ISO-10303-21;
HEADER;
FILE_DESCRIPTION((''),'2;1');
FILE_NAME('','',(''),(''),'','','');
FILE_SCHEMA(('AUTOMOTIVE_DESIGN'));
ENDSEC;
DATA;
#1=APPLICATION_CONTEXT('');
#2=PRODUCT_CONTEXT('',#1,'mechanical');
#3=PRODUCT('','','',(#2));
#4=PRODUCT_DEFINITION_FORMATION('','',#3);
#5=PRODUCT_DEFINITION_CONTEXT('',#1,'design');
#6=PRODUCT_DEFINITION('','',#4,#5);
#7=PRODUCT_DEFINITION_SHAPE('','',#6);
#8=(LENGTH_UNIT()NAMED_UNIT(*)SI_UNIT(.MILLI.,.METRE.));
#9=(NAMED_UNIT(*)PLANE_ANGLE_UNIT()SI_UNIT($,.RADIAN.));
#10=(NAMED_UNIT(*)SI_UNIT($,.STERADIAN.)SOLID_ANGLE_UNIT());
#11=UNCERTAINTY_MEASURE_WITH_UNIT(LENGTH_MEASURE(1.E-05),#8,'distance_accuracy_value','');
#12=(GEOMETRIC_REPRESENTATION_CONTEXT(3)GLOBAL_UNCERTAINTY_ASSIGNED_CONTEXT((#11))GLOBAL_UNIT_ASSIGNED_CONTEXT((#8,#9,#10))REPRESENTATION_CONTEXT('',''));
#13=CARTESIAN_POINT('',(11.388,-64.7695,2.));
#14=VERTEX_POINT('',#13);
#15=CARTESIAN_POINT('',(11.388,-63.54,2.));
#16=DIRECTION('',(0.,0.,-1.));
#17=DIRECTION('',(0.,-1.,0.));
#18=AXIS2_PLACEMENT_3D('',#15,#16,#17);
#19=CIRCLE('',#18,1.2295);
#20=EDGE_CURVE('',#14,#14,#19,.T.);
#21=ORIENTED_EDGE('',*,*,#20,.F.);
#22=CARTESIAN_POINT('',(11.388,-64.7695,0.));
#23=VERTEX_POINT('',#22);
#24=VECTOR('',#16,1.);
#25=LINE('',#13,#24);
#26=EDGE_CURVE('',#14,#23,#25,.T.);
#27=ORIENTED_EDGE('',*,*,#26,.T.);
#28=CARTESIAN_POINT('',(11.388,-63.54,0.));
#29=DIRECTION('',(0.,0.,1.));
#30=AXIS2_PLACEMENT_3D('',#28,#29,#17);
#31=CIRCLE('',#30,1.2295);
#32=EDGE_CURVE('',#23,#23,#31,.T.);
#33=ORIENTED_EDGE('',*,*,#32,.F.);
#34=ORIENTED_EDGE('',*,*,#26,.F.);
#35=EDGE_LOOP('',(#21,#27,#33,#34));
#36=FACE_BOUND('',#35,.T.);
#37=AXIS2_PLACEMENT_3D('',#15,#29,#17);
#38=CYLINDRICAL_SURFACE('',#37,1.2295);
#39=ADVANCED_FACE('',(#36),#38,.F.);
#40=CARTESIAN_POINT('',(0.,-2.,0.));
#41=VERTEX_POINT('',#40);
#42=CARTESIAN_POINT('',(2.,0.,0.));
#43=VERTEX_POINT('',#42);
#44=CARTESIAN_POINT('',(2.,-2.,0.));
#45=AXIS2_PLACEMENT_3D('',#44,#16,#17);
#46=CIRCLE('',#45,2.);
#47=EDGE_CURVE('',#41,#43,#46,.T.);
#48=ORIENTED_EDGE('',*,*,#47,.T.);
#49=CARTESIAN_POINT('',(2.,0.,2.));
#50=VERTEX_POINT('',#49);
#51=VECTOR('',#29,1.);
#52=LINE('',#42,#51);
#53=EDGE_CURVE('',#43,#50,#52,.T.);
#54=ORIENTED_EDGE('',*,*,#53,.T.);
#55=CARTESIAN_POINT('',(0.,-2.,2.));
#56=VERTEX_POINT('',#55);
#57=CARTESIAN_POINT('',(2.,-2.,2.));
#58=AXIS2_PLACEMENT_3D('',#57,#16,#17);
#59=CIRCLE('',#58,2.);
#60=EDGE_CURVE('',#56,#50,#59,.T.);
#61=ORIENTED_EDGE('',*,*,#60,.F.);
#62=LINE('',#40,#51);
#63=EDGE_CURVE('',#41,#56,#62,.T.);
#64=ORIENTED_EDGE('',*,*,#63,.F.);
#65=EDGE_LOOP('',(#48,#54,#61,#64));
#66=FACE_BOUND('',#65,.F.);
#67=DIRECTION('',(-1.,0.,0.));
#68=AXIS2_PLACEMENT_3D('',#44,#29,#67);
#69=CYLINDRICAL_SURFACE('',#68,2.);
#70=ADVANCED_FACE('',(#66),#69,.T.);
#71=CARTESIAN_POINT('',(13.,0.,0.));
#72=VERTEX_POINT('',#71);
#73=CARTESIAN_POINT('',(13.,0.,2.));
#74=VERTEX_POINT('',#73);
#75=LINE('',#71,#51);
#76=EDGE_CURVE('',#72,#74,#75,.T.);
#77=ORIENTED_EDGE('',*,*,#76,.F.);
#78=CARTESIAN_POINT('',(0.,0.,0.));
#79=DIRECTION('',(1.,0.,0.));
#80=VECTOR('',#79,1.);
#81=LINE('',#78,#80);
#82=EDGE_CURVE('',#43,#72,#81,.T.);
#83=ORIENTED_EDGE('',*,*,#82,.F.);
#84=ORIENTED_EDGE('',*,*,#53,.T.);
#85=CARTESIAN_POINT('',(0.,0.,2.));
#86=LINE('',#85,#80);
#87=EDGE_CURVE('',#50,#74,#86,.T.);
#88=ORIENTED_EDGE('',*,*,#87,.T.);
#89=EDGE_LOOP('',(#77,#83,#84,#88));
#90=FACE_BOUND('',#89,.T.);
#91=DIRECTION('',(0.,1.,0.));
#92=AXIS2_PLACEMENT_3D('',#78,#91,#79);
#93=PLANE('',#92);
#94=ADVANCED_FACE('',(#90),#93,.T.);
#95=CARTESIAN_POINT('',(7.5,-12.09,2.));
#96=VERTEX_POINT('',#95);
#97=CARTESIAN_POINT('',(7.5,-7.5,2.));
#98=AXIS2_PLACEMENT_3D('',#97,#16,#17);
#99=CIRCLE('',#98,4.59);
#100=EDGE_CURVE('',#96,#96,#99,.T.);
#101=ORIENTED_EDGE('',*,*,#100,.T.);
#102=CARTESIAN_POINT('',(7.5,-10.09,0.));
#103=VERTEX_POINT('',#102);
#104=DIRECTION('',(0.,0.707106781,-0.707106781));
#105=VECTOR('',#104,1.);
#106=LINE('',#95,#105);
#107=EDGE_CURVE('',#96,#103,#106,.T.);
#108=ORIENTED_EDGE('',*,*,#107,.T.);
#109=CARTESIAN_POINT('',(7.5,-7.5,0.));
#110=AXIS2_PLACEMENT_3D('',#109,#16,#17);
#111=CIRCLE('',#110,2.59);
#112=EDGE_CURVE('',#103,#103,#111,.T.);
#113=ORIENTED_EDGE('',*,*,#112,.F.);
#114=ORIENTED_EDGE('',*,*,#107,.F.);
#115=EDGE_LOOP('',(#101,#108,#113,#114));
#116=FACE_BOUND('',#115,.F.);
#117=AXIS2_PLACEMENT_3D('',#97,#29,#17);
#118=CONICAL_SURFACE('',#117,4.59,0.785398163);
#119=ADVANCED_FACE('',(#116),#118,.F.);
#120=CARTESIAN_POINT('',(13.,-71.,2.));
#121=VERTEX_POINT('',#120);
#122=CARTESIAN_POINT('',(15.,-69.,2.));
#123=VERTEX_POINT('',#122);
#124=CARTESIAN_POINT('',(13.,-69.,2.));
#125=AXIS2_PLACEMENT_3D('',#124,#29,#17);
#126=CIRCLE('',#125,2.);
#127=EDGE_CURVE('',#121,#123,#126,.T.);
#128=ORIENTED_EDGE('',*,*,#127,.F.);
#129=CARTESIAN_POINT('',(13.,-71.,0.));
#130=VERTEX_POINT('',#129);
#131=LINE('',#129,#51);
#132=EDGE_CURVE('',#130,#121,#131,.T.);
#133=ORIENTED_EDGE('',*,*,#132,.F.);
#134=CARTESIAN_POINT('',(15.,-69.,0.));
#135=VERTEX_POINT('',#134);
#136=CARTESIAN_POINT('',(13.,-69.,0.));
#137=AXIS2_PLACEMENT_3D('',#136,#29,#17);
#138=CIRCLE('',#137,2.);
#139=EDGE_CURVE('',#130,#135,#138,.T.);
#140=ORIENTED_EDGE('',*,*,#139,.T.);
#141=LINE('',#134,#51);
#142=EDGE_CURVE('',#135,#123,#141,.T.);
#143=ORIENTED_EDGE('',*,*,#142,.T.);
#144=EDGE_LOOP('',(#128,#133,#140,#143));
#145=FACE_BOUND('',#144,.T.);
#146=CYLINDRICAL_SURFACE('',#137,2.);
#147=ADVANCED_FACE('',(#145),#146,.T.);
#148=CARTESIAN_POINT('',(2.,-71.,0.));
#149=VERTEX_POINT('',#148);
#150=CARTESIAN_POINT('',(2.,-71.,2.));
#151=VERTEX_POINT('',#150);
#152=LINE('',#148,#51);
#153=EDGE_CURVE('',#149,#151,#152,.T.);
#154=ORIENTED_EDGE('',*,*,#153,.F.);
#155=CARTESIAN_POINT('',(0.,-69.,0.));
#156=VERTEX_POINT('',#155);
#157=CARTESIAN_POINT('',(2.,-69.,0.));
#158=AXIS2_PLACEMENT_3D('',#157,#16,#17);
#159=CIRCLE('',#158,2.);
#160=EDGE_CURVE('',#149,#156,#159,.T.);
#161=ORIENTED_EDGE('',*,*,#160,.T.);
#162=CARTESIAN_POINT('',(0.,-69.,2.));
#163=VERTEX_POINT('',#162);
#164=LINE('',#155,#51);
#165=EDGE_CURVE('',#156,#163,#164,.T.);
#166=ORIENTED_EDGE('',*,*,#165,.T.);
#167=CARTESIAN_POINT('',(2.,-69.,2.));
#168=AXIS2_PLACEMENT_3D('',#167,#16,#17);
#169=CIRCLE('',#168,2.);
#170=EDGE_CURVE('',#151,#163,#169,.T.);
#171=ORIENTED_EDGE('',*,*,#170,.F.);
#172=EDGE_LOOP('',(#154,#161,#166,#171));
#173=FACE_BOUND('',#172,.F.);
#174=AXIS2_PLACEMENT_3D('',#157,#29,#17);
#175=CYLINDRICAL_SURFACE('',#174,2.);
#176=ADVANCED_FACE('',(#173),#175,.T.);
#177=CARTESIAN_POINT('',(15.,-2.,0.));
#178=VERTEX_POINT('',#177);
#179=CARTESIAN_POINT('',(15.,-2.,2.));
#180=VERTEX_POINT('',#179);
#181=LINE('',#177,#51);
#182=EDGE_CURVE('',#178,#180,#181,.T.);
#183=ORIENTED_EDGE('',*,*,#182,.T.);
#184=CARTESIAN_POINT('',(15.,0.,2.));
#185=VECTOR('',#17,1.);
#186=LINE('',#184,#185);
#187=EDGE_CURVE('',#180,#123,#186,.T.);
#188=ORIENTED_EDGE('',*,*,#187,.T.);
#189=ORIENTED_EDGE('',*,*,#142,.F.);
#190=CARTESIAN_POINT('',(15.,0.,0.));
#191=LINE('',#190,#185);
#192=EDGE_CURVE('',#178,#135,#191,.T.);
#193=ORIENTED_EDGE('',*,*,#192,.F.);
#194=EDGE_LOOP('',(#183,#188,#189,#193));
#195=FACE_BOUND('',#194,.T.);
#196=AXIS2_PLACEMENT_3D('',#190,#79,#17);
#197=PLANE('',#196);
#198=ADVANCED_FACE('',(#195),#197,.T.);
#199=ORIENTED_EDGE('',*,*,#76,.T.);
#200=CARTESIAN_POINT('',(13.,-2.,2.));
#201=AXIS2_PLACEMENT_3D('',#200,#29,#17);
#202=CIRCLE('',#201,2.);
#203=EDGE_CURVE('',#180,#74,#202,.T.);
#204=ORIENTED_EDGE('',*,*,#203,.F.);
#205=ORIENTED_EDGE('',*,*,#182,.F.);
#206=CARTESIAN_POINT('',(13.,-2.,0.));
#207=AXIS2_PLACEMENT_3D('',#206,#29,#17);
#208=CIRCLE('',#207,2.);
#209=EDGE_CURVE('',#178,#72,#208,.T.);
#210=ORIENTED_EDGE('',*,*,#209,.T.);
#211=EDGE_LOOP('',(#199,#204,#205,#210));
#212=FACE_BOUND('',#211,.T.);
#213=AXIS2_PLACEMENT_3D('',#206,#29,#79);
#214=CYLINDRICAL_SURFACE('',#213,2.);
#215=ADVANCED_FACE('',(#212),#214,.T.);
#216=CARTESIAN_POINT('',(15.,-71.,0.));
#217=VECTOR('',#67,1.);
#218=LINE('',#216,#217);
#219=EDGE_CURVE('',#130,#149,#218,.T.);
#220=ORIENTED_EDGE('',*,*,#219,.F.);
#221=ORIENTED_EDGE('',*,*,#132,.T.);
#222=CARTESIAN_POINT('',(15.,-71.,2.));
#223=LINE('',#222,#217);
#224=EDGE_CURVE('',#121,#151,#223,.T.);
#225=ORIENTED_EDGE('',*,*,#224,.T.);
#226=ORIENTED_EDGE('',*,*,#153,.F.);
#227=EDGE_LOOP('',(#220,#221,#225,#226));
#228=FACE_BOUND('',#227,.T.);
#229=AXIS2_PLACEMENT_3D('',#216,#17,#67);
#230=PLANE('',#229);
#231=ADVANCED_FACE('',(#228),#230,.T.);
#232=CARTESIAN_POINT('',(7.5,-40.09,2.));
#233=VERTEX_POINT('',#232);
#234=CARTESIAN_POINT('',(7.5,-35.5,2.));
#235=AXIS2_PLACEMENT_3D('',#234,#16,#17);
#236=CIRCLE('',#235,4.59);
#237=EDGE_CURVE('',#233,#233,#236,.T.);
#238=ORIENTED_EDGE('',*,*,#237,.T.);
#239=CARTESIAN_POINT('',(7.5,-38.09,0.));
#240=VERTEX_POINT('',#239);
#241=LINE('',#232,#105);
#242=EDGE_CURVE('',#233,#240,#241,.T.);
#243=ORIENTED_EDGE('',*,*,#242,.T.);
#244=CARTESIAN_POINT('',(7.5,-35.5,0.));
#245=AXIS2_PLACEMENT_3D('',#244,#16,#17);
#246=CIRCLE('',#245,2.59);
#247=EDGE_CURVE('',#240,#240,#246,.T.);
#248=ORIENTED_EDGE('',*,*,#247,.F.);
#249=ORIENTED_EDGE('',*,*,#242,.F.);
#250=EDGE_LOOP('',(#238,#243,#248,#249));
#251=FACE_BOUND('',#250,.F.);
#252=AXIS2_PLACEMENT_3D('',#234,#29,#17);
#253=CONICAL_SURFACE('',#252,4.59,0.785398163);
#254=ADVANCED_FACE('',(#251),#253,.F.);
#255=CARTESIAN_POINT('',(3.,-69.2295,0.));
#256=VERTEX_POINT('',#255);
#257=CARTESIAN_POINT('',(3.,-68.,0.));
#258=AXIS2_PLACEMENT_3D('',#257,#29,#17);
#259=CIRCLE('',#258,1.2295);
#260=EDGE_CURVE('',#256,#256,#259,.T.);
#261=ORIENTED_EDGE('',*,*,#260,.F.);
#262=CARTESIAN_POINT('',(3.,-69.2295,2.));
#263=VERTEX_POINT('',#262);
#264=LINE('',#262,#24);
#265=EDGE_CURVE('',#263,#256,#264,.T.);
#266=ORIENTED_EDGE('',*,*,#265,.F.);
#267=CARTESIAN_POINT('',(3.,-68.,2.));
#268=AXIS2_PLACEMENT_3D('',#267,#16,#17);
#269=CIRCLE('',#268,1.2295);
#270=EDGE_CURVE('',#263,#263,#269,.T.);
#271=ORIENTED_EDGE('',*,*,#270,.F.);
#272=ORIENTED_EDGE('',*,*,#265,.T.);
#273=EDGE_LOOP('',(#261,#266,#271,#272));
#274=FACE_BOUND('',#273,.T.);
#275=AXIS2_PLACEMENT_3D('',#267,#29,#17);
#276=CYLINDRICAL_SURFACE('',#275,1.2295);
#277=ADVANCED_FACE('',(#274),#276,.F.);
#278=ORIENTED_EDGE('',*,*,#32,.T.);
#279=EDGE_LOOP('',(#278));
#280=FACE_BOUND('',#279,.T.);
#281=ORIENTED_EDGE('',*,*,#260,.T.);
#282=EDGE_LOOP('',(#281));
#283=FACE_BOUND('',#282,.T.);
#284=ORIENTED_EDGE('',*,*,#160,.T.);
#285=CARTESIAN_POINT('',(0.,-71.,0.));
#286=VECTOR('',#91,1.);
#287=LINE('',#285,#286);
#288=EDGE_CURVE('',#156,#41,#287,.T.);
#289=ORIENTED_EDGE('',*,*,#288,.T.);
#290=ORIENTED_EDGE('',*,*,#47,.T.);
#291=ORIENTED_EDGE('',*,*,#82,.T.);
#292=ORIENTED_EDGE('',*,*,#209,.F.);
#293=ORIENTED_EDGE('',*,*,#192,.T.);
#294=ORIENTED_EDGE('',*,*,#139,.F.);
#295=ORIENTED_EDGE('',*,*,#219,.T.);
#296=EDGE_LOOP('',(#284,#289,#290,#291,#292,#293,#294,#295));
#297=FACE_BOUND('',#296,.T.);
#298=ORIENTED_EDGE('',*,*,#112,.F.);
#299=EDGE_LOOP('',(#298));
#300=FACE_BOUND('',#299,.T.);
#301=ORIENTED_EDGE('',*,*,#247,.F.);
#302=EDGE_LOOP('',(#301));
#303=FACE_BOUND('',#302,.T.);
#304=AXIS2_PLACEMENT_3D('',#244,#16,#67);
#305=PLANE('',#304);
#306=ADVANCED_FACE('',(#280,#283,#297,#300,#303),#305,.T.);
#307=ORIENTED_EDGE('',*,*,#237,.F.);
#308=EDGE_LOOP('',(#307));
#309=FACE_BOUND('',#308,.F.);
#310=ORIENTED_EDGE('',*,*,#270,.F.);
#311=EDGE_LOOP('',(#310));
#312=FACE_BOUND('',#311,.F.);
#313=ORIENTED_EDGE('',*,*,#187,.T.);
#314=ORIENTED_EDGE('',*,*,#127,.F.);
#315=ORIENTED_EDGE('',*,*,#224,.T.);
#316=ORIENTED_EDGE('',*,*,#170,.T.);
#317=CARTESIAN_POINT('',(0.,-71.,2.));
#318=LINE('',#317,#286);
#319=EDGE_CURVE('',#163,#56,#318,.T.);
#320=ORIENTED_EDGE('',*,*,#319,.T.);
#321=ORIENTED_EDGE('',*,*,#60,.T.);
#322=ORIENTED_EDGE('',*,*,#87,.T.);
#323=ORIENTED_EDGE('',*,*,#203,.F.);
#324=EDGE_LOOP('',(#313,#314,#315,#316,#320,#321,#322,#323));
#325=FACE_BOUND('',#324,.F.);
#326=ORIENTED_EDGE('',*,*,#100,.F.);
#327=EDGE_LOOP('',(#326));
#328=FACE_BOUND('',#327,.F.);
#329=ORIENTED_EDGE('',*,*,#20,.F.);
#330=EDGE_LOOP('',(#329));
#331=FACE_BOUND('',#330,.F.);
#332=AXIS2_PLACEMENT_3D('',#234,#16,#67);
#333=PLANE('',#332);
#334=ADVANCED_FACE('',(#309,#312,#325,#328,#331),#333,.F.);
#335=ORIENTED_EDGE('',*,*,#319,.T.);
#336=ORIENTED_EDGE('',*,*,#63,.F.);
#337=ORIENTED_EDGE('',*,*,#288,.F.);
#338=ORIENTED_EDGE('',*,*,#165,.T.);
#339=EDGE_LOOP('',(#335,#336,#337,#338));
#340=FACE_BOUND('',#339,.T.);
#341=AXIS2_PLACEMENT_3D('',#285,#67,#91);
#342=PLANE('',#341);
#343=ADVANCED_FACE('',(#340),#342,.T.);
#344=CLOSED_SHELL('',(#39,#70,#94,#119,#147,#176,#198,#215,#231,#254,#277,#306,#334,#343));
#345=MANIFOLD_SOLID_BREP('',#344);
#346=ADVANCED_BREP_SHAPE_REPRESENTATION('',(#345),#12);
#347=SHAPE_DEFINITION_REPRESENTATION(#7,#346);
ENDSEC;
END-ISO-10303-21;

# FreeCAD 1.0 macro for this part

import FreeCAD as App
import Part
import Sketcher
Q = App.Units.Quantity


def edges_at(feature, points):
    """Names of the edges that pass closest to the given points."""
    edges = feature.Shape.Edges
    near = lambda p: min(range(len(edges)), key=lambda i: edges[i].distToShape(Part.Vertex(*p))[0])
    return sorted({f"Edge{near(p) + 1}" for p in points})

doc = App.newDocument("Part")
body = doc.addObject("PartDesign::Body", "Body")

# Sketch on XY plane
sketch1 = body.newObject("Sketcher::SketchObject", "Sketch")
sketch1.AttachmentSupport = (doc.getObject("XY_Plane"), [""])
sketch1.MapMode = "FlatFace"
sketch1.addGeometry([
    Part.LineSegment(App.Vector(0, -71, 0), App.Vector(15, -71, 0)),
    Part.LineSegment(App.Vector(15, -71, 0), App.Vector(15, 0, 0)),
    Part.LineSegment(App.Vector(15, 0, 0), App.Vector(0, 0, 0)),
    Part.LineSegment(App.Vector(0, 0, 0), App.Vector(0, -71, 0)),
], False)
sketch1.addConstraint([
    Sketcher.Constraint("Coincident", 0, 2, 1, 1),
    Sketcher.Constraint("Coincident", 1, 2, 2, 1),
    Sketcher.Constraint("Coincident", 2, 2, 3, 1),
    Sketcher.Constraint("Coincident", 3, 2, 0, 1),
    Sketcher.Constraint("Horizontal", 0),
    Sketcher.Constraint("Vertical", 1),
    Sketcher.Constraint("Horizontal", 2),
    Sketcher.Constraint("Vertical", 3),
    Sketcher.Constraint("Coincident", 2, 2, -1, 1),
    Sketcher.Constraint("DistanceX", 0, 1, 0, 2, Q("15 mm")),
    Sketcher.Constraint("DistanceY", 1, 1, 1, 2, Q("71 mm")),
])
pad1 = body.newObject("PartDesign::Pad", "Pad")
pad1.Profile = sketch1
pad1.Length = 2

# Sketch on XY plane
sketch2 = body.newObject("Sketcher::SketchObject", "Sketch001")
sketch2.AttachmentSupport = (doc.getObject("XY_Plane"), [""])
sketch2.MapMode = "FlatFace"
sketch2.AttachmentOffset = App.Placement(App.Vector(0, 0, 2), App.Rotation())
sketch2.addGeometry(Part.Circle(App.Vector(3, -68, 0), App.Vector(0, 0, 1), 1.2), False)
sketch2.addConstraint([
    Sketcher.Constraint("Diameter", 0, Q("2.459 mm")),
    Sketcher.Constraint("DistanceX", -1, 1, 0, 3, Q("3 mm")),
    Sketcher.Constraint("DistanceY", 0, 3, -1, 1, Q("68 mm")),
])
doc.recompute()
hole = body.newObject("PartDesign::Hole", "Hole")
hole.Profile = sketch2
hole.ThreadType = "None"
hole.Diameter = 2.459
hole.DepthType = "ThroughAll"

# Sketch on XY plane
sketch3 = body.newObject("Sketcher::SketchObject", "Sketch002")
sketch3.AttachmentSupport = (doc.getObject("XY_Plane"), [""])
sketch3.MapMode = "FlatFace"
sketch3.AttachmentOffset = App.Placement(App.Vector(0, 0, 2), App.Rotation())
sketch3.addGeometry(Part.Circle(App.Vector(11.4, -63.5, 0), App.Vector(0, 0, 1), 1.2), False)
sketch3.addConstraint([
    Sketcher.Constraint("Diameter", 0, Q("2.459 mm")),
    Sketcher.Constraint("DistanceY", 0, 3, -1, 1, Q("63.54 mm")),
    Sketcher.Constraint("DistanceX", -1, 1, 0, 3, Q("11.388 mm")),
])
doc.recompute()
hole2 = body.newObject("PartDesign::Hole", "Hole001")
hole2.Profile = sketch3
hole2.ThreadType = "None"
hole2.Diameter = 2.459
hole2.DepthType = "ThroughAll"

# Sketch on XY plane
sketch4 = body.newObject("Sketcher::SketchObject", "Sketch003")
sketch4.AttachmentSupport = (doc.getObject("XY_Plane"), [""])
sketch4.MapMode = "FlatFace"
sketch4.AttachmentOffset = App.Placement(App.Vector(0, 0, 2), App.Rotation())
sketch4.addGeometry(Part.Circle(App.Vector(7.5, -7.5, 0), App.Vector(0, 0, 1), 2.1), False)
sketch4.addConstraint([
    Sketcher.Constraint("Diameter", 0, Q("4.3 mm")),
    Sketcher.Constraint("DistanceX", -1, 1, 0, 3, Q("7.5 mm")),
    Sketcher.Constraint("DistanceY", 0, 3, -1, 1, Q("7.5 mm")),
])
doc.recompute()
hole3 = body.newObject("PartDesign::Hole", "Hole002")
hole3.Profile = sketch4
hole3.ThreadType = "None"
hole3.Diameter = 4.3
hole3.DepthType = "ThroughAll"
hole3.HoleCutType = "Countersink"
hole3.HoleCutDiameter = 9.18
hole3.HoleCutCountersinkAngle = 90

# Sketch on XY plane
sketch5 = body.newObject("Sketcher::SketchObject", "Sketch004")
sketch5.AttachmentSupport = (doc.getObject("XY_Plane"), [""])
sketch5.MapMode = "FlatFace"
sketch5.AttachmentOffset = App.Placement(App.Vector(0, 0, 2), App.Rotation())
sketch5.addGeometry(Part.Circle(App.Vector(7.5, -35.5, 0), App.Vector(0, 0, 1), 2.1), False)
sketch5.addConstraint([
    Sketcher.Constraint("Diameter", 0, Q("4.3 mm")),
    Sketcher.Constraint("DistanceX", -1, 1, 0, 3, Q("7.5 mm")),
    Sketcher.Constraint("DistanceY", 0, 3, -1, 1, Q("35.5 mm")),
])
doc.recompute()
hole4 = body.newObject("PartDesign::Hole", "Hole003")
hole4.Profile = sketch5
hole4.ThreadType = "None"
hole4.Diameter = 4.3
hole4.DepthType = "ThroughAll"
hole4.HoleCutType = "Countersink"
hole4.HoleCutDiameter = 9.18
hole4.HoleCutCountersinkAngle = 90
doc.recompute()

fillet = body.newObject("PartDesign::Fillet", "Fillet")
fillet.Base = (hole4, edges_at(hole4, [
    (15, 0, 1),
    (0, 0, 1),
    (15, -71, 1),
    (0, -71, 1),
]))
fillet.Radius = 2

doc.recompute()
